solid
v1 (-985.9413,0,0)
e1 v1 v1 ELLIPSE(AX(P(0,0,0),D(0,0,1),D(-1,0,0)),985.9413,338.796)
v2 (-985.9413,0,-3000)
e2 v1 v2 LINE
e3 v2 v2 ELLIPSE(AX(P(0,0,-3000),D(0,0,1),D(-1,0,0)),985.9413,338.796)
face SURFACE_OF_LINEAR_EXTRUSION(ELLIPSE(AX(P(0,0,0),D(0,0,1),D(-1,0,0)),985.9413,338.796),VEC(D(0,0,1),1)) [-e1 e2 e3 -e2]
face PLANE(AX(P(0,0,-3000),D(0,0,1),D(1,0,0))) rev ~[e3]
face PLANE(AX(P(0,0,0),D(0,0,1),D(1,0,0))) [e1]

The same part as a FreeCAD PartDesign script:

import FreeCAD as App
import Part
import Sketcher

V = App.Vector

doc = App.newDocument("Part")
params = doc.addObject("Spreadsheet::Sheet", "Params")
for row, (alias, value) in enumerate([
    ("pad1_length", "3000 mm"),
], start=1):
    params.set(f"A{row}", alias)
    params.set(f"B{row}", "=" + value)
    params.setAlias(f"B{row}", alias)

body = doc.addObject("PartDesign::Body", "Body")

# Sketch on XY plane
sketch1 = doc.addObject("Sketcher::SketchObject", "Sketch")
body.addObject(sketch1)
sketch1.AttachmentSupport = (doc.XY_Plane, [""])
sketch1.MapMode = "FlatFace"
sketch1.addGeometry(Part.Ellipse(V(-985.9413, 0, 0), V(0, -338.796, 0), V(0, 0, 0)), False)
sketch1.addConstraint(Sketcher.Constraint("Block", 0))
pad1 = doc.addObject("PartDesign::Pad", "Pad")
body.addObject(pad1)
pad1.Profile = sketch1
pad1.setExpression("Length", "Params.pad1_length")
pad1.Reversed = True

doc.recompute()
